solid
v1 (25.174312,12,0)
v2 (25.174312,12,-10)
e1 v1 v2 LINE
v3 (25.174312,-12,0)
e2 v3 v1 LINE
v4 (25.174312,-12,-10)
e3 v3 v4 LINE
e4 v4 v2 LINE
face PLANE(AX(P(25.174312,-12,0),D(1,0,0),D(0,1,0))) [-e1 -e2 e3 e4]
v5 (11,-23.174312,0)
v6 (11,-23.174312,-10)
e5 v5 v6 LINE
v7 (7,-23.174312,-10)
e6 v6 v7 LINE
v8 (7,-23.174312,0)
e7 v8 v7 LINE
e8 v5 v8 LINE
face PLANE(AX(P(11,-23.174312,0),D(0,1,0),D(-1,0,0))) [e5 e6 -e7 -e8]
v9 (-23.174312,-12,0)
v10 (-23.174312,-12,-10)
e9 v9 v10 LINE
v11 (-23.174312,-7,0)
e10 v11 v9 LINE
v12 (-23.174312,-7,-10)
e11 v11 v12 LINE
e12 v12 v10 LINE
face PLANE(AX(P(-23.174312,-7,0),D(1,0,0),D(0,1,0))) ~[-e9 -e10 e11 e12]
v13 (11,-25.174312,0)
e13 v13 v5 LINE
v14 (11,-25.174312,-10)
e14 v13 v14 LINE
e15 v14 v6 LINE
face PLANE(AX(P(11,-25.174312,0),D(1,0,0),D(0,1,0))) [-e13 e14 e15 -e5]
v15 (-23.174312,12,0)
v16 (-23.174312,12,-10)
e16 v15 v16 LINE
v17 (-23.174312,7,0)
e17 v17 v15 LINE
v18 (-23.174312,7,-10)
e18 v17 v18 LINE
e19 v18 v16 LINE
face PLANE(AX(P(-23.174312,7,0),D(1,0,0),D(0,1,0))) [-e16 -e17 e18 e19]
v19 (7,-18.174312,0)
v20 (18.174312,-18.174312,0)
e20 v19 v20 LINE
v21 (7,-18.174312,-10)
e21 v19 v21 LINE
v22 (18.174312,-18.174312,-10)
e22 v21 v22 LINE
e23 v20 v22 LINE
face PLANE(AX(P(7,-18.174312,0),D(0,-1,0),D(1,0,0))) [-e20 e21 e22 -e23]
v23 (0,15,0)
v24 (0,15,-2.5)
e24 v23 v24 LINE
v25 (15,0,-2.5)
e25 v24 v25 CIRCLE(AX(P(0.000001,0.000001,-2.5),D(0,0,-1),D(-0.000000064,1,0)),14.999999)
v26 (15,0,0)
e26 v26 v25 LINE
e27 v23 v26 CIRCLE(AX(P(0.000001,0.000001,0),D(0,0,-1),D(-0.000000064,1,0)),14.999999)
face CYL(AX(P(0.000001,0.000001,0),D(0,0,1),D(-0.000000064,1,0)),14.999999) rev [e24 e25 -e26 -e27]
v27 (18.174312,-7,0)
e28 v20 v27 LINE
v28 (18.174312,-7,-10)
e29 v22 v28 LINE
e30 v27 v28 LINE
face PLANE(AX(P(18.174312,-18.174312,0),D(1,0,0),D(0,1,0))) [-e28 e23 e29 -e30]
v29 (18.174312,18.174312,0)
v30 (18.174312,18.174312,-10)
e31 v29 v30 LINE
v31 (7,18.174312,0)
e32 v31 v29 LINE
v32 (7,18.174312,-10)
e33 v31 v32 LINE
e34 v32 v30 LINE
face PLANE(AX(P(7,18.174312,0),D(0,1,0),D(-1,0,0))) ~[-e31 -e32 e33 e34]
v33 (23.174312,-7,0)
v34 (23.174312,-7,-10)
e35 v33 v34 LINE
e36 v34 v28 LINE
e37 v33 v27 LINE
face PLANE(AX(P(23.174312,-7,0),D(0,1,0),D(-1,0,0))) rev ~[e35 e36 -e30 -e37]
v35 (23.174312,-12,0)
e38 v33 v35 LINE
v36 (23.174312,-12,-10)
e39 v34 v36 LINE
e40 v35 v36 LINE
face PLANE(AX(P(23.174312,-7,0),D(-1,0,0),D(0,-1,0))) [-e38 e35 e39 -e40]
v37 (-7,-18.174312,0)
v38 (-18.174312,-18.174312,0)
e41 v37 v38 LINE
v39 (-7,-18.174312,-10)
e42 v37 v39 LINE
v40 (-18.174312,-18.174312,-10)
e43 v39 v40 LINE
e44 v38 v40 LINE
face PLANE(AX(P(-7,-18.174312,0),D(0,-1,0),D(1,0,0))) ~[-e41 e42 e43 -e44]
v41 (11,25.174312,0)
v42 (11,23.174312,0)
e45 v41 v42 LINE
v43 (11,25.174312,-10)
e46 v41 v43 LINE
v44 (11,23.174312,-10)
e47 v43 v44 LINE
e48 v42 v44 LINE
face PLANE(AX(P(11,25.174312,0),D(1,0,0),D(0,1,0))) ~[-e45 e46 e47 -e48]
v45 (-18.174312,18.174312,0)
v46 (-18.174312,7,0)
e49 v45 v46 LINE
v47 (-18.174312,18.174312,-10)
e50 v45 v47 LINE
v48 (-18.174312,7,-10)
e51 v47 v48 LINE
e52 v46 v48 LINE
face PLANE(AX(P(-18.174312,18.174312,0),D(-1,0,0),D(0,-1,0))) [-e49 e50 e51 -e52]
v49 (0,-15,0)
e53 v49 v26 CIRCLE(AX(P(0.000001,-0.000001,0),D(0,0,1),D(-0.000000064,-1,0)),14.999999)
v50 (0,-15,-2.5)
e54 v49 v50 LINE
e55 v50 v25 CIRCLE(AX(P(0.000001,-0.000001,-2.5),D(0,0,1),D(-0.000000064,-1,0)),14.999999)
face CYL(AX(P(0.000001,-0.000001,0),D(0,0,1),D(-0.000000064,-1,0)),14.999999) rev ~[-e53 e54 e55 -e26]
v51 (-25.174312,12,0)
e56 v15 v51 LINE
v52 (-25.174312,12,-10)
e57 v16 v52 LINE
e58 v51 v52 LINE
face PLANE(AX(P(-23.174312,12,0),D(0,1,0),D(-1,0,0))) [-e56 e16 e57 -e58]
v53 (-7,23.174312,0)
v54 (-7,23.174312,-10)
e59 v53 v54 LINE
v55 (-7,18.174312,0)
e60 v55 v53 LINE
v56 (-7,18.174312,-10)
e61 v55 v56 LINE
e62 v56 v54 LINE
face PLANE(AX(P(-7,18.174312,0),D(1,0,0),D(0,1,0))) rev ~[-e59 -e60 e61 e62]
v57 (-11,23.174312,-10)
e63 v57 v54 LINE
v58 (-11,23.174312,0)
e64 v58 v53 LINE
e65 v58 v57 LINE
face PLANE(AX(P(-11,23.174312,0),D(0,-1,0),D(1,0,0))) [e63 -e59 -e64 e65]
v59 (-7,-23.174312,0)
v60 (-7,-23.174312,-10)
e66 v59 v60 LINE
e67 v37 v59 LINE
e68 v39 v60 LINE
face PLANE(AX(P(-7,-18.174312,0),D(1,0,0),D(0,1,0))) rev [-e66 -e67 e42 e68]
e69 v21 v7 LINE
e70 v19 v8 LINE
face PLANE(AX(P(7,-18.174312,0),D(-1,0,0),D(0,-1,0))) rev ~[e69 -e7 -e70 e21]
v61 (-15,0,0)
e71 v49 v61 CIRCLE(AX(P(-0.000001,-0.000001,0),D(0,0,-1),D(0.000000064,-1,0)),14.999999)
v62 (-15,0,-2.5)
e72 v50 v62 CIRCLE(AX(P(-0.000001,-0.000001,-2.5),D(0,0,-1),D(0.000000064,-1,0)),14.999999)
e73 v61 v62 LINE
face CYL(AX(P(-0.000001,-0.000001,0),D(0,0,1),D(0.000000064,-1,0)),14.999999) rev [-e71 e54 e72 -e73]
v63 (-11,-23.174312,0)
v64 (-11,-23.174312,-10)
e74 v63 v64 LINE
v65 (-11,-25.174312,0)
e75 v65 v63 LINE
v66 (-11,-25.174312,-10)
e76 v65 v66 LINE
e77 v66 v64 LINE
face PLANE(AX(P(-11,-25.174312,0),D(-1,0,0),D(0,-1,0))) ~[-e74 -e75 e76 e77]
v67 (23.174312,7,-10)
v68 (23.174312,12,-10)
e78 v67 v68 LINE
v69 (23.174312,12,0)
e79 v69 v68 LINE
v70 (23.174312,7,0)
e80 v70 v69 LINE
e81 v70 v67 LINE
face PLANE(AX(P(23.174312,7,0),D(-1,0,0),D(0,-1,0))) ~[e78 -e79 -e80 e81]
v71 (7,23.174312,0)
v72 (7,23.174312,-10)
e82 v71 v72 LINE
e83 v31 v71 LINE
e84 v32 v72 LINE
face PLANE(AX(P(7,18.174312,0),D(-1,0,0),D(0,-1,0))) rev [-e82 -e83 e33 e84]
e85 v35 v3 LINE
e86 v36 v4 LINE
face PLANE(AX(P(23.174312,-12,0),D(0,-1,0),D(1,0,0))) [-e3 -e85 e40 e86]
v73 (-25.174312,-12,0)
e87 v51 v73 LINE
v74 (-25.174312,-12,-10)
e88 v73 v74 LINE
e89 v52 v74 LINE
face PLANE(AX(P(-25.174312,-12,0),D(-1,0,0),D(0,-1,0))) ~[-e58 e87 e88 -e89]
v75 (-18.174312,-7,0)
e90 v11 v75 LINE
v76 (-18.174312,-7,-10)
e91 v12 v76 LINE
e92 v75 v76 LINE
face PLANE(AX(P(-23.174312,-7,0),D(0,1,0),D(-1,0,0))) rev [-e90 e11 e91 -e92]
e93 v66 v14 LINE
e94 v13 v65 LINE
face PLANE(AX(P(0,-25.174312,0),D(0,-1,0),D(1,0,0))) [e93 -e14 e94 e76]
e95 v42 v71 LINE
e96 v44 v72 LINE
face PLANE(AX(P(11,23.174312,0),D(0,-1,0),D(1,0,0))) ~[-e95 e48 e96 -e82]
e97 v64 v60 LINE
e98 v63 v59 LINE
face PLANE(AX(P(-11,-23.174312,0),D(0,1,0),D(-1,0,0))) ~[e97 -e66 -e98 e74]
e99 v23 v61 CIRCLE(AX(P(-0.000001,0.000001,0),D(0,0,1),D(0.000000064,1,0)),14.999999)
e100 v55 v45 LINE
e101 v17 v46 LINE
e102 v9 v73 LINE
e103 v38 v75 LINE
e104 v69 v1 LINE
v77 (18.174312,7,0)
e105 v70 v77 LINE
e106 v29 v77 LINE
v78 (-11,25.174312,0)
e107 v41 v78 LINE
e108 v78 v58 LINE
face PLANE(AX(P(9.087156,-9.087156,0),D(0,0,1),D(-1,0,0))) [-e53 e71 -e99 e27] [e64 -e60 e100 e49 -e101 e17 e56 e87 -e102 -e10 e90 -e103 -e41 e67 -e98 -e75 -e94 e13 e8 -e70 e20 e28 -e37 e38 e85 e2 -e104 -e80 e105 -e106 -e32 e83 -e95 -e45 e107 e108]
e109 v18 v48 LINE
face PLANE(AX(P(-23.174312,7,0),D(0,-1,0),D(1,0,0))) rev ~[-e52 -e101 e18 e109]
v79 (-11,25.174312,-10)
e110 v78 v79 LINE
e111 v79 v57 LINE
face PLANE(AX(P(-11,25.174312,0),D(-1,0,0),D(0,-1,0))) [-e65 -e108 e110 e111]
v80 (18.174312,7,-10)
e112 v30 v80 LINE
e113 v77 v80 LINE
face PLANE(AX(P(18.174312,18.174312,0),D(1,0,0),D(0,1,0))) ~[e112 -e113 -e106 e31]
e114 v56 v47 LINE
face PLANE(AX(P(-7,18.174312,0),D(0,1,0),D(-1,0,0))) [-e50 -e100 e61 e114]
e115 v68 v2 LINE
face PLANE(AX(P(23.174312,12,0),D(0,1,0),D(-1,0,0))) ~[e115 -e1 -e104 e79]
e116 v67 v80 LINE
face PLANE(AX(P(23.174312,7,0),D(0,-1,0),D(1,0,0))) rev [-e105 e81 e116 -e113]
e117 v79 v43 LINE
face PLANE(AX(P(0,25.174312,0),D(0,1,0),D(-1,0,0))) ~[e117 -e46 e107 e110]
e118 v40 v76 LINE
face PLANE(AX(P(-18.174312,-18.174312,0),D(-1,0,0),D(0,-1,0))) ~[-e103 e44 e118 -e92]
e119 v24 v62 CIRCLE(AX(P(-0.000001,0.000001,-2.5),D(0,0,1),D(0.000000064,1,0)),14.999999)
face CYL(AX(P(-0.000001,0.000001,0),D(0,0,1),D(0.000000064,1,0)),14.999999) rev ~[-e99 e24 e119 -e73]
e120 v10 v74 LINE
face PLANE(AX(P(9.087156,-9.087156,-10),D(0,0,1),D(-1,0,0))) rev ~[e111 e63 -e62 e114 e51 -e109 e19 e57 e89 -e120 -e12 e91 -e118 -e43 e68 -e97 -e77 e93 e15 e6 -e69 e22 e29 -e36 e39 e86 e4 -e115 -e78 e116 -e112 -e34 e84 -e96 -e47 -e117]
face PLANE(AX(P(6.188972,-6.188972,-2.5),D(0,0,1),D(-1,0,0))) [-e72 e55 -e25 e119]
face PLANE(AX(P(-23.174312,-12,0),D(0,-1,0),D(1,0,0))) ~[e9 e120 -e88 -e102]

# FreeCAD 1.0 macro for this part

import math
import FreeCAD as App
import Part
import Sketcher

V = App.Vector
Q = App.Units.Quantity


def add_polygon(sketch, points):
    """Adds a closed chain of lines whose ends are joined by coincident constraints."""
    first, n = sketch.GeometryCount, len(points)
    for a, b in zip(points, points[1:] + points[:1]):
        sketch.addGeometry(Part.LineSegment(App.Vector(*a, 0), App.Vector(*b, 0)), False)
    for i in range(n):
        sketch.addConstraint(Sketcher.Constraint("Coincident", first + i, 2, first + (i + 1) % n, 1))

doc = App.newDocument("Part")
body = doc.addObject("PartDesign::Body", "Body")

# Sketch on XY plane
sketch1 = body.newObject("Sketcher::SketchObject", "Sketch")
sketch1.AttachmentSupport = (doc.getObject("XY_Plane"), [""])
sketch1.MapMode = "FlatFace"
add_polygon(sketch1, [(0, 0), (0, 25.2), (-11, 25.2), (-11, 23.2), (-7, 23.2), (-7, 18.2), (-18.2, 18.2), (-18.2, 7), (-23.2, 7), (-23.2, 12), (-25.2, 12), (-25.2, 0)])  # lines 0-11
sketch1.addConstraint([
    Sketcher.Constraint("Vertical", 0),
    Sketcher.Constraint("Horizontal", 1),
    Sketcher.Constraint("Vertical", 2),
    Sketcher.Constraint("Horizontal", 3),
    Sketcher.Constraint("Vertical", 4),
    Sketcher.Constraint("Horizontal", 5),
    Sketcher.Constraint("Vertical", 6),
    Sketcher.Constraint("Horizontal", 7),
    Sketcher.Constraint("Vertical", 8),
    Sketcher.Constraint("Horizontal", 9),
    Sketcher.Constraint("Vertical", 10),
    Sketcher.Constraint("Horizontal", 11),
    Sketcher.Constraint("Coincident", 11, 2, -1, 1),
    Sketcher.Constraint("Equal", 11, 0),
    Sketcher.Constraint("Equal", 9, 2),
    Sketcher.Constraint("Equal", 7, 4),
    Sketcher.Constraint("Equal", 5, 6),
    Sketcher.Constraint("Equal", 4, 8),
    Sketcher.Constraint("DistanceX", 1, 2, 1, 1, Q("11 mm")),
    Sketcher.Constraint("DistanceX", 3, 1, 3, 2, Q("4 mm")),
    Sketcher.Constraint("DistanceX", 7, 2, 7, 1, Q("5 mm")),
    Sketcher.Constraint("DistanceX", 9, 2, 9, 1, Q("2 mm")),
    Sketcher.Constraint("DistanceX", 5, 2, 5, 1, Q("11.174312 mm")),
])
pad1 = body.newObject("PartDesign::Pad", "Pad")
pad1.Profile = sketch1
pad1.Length = 10
pad1.Reversed = True

# Sketch on XY plane
sketch2 = body.newObject("Sketcher::SketchObject", "Sketch001")
sketch2.AttachmentSupport = (doc.getObject("XY_Plane"), [""])
sketch2.MapMode = "FlatFace"
sketch2.addGeometry([
    Part.LineSegment(V(0, 0, 0), V(0, 15, 0)),
    Part.ArcOfCircle(Part.Circle(V(0, 0, 0), V(0, 0, 1), 15), math.radians(90), math.radians(180)),
    Part.LineSegment(V(-15, 0, 0), V(0, 0, 0)),
], False)
sketch2.addConstraint([
    Sketcher.Constraint("Coincident", 0, 2, 1, 1),
    Sketcher.Constraint("Coincident", 1, 2, 2, 1),
    Sketcher.Constraint("Coincident", 2, 2, 0, 1),
    Sketcher.Constraint("Vertical", 0),
    Sketcher.Constraint("Horizontal", 2),
    Sketcher.Constraint("Coincident", 1, 3, -1, 1),
    Sketcher.Constraint("Coincident", 2, 2, -1, 1),
    Sketcher.Constraint("Radius", 1, Q("14.999999 mm")),
])
pocket1 = body.newObject("PartDesign::Pocket", "Pocket")
pocket1.Profile = sketch2
pocket1.Length = 2.5
body2 = doc.addObject("PartDesign::Body", "Body001")
doc.recompute()

body2.BaseFeature = body
doc.recompute()

mirroring = doc.addObject("Part::Mirroring", "Mirroring")
mirroring.Source = body
mirroring.Base = V(0, 0, 0)
mirroring.Normal = V(1, 0, 0)
body3 = doc.addObject("PartDesign::Body", "Body002")
body3.BaseFeature = mirroring
boolean = body2.newObject("PartDesign::Boolean", "Boolean")
boolean.Type = "Fuse"
boolean.addObjects([body3])
doc.recompute()
body4 = doc.addObject("PartDesign::Body", "Body003")
doc.recompute()

body4.BaseFeature = body2
doc.recompute()

mirroring2 = doc.addObject("Part::Mirroring", "Mirroring001")
mirroring2.Source = body2
mirroring2.Base = V(0, 0, 0)
mirroring2.Normal = V(0, -1, 0)
body5 = doc.addObject("PartDesign::Body", "Body004")
body5.BaseFeature = mirroring2
boolean2 = body4.newObject("PartDesign::Boolean", "Boolean001")
boolean2.Type = "Fuse"
boolean2.addObjects([body5])
doc.recompute()
mirroring.Visibility = False
mirroring2.Visibility = False

doc.recompute()
